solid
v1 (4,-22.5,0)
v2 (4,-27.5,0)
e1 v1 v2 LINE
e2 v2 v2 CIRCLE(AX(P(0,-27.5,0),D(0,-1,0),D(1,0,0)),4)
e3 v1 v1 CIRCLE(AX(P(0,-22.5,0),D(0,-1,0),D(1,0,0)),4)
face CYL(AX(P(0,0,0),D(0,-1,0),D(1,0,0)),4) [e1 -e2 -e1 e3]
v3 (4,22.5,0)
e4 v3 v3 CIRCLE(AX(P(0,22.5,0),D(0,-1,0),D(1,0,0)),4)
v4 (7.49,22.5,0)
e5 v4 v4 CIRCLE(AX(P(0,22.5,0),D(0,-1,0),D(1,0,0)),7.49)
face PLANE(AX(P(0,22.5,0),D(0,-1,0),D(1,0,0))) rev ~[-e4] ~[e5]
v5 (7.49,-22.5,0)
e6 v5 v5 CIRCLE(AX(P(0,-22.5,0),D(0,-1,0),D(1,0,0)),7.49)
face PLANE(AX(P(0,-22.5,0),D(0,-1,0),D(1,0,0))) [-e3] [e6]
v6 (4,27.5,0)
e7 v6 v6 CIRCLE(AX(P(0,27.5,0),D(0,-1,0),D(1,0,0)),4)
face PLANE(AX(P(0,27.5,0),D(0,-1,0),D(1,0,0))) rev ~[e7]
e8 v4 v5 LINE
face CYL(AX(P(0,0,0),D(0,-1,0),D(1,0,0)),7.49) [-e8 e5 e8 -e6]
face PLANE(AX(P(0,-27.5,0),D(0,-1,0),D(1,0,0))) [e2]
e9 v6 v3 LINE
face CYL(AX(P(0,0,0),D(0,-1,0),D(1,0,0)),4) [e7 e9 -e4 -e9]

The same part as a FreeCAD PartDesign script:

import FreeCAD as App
import Part
import Sketcher
from FreeCAD import Vector

doc = App.newDocument("Part")
body = doc.addObject("PartDesign::Body", "Body")

sketch1 = body.newObject("Sketcher::SketchObject", "Sketch")
sketch1.AttachmentSupport = (doc.getObject("XZ_Plane"), [""])
sketch1.MapMode = "FlatFace"
sketch1.addGeometry(Part.Circle(Vector(0, 0, 0), Vector(0, 0, 1), 7), False)
sketch1.addConstraint(Sketcher.Constraint("Coincident", 0, 3, -1, 1))
sketch1.addConstraint(Sketcher.Constraint("Diameter", 0, 14.98))
pad1 = body.newObject("PartDesign::Pad", "Pad")
pad1.Profile = sketch1
pad1.Length = 45
pad1.Midplane = True

sketch2 = body.newObject("Sketcher::SketchObject", "Sketch001")
sketch2.AttachmentSupport = (doc.getObject("XZ_Plane"), [""])
sketch2.MapMode = "FlatFace"
sketch2.addGeometry(Part.Circle(Vector(0, 0, 0), Vector(0, 0, 1), 4), False)
sketch2.addConstraint(Sketcher.Constraint("Coincident", 0, 3, -1, 1))
sketch2.addConstraint(Sketcher.Constraint("Diameter", 0, 8.0))
pad2 = body.newObject("PartDesign::Pad", "Pad001")
pad2.Profile = sketch2
pad2.Length = 55
pad2.Midplane = True

doc.recompute()
